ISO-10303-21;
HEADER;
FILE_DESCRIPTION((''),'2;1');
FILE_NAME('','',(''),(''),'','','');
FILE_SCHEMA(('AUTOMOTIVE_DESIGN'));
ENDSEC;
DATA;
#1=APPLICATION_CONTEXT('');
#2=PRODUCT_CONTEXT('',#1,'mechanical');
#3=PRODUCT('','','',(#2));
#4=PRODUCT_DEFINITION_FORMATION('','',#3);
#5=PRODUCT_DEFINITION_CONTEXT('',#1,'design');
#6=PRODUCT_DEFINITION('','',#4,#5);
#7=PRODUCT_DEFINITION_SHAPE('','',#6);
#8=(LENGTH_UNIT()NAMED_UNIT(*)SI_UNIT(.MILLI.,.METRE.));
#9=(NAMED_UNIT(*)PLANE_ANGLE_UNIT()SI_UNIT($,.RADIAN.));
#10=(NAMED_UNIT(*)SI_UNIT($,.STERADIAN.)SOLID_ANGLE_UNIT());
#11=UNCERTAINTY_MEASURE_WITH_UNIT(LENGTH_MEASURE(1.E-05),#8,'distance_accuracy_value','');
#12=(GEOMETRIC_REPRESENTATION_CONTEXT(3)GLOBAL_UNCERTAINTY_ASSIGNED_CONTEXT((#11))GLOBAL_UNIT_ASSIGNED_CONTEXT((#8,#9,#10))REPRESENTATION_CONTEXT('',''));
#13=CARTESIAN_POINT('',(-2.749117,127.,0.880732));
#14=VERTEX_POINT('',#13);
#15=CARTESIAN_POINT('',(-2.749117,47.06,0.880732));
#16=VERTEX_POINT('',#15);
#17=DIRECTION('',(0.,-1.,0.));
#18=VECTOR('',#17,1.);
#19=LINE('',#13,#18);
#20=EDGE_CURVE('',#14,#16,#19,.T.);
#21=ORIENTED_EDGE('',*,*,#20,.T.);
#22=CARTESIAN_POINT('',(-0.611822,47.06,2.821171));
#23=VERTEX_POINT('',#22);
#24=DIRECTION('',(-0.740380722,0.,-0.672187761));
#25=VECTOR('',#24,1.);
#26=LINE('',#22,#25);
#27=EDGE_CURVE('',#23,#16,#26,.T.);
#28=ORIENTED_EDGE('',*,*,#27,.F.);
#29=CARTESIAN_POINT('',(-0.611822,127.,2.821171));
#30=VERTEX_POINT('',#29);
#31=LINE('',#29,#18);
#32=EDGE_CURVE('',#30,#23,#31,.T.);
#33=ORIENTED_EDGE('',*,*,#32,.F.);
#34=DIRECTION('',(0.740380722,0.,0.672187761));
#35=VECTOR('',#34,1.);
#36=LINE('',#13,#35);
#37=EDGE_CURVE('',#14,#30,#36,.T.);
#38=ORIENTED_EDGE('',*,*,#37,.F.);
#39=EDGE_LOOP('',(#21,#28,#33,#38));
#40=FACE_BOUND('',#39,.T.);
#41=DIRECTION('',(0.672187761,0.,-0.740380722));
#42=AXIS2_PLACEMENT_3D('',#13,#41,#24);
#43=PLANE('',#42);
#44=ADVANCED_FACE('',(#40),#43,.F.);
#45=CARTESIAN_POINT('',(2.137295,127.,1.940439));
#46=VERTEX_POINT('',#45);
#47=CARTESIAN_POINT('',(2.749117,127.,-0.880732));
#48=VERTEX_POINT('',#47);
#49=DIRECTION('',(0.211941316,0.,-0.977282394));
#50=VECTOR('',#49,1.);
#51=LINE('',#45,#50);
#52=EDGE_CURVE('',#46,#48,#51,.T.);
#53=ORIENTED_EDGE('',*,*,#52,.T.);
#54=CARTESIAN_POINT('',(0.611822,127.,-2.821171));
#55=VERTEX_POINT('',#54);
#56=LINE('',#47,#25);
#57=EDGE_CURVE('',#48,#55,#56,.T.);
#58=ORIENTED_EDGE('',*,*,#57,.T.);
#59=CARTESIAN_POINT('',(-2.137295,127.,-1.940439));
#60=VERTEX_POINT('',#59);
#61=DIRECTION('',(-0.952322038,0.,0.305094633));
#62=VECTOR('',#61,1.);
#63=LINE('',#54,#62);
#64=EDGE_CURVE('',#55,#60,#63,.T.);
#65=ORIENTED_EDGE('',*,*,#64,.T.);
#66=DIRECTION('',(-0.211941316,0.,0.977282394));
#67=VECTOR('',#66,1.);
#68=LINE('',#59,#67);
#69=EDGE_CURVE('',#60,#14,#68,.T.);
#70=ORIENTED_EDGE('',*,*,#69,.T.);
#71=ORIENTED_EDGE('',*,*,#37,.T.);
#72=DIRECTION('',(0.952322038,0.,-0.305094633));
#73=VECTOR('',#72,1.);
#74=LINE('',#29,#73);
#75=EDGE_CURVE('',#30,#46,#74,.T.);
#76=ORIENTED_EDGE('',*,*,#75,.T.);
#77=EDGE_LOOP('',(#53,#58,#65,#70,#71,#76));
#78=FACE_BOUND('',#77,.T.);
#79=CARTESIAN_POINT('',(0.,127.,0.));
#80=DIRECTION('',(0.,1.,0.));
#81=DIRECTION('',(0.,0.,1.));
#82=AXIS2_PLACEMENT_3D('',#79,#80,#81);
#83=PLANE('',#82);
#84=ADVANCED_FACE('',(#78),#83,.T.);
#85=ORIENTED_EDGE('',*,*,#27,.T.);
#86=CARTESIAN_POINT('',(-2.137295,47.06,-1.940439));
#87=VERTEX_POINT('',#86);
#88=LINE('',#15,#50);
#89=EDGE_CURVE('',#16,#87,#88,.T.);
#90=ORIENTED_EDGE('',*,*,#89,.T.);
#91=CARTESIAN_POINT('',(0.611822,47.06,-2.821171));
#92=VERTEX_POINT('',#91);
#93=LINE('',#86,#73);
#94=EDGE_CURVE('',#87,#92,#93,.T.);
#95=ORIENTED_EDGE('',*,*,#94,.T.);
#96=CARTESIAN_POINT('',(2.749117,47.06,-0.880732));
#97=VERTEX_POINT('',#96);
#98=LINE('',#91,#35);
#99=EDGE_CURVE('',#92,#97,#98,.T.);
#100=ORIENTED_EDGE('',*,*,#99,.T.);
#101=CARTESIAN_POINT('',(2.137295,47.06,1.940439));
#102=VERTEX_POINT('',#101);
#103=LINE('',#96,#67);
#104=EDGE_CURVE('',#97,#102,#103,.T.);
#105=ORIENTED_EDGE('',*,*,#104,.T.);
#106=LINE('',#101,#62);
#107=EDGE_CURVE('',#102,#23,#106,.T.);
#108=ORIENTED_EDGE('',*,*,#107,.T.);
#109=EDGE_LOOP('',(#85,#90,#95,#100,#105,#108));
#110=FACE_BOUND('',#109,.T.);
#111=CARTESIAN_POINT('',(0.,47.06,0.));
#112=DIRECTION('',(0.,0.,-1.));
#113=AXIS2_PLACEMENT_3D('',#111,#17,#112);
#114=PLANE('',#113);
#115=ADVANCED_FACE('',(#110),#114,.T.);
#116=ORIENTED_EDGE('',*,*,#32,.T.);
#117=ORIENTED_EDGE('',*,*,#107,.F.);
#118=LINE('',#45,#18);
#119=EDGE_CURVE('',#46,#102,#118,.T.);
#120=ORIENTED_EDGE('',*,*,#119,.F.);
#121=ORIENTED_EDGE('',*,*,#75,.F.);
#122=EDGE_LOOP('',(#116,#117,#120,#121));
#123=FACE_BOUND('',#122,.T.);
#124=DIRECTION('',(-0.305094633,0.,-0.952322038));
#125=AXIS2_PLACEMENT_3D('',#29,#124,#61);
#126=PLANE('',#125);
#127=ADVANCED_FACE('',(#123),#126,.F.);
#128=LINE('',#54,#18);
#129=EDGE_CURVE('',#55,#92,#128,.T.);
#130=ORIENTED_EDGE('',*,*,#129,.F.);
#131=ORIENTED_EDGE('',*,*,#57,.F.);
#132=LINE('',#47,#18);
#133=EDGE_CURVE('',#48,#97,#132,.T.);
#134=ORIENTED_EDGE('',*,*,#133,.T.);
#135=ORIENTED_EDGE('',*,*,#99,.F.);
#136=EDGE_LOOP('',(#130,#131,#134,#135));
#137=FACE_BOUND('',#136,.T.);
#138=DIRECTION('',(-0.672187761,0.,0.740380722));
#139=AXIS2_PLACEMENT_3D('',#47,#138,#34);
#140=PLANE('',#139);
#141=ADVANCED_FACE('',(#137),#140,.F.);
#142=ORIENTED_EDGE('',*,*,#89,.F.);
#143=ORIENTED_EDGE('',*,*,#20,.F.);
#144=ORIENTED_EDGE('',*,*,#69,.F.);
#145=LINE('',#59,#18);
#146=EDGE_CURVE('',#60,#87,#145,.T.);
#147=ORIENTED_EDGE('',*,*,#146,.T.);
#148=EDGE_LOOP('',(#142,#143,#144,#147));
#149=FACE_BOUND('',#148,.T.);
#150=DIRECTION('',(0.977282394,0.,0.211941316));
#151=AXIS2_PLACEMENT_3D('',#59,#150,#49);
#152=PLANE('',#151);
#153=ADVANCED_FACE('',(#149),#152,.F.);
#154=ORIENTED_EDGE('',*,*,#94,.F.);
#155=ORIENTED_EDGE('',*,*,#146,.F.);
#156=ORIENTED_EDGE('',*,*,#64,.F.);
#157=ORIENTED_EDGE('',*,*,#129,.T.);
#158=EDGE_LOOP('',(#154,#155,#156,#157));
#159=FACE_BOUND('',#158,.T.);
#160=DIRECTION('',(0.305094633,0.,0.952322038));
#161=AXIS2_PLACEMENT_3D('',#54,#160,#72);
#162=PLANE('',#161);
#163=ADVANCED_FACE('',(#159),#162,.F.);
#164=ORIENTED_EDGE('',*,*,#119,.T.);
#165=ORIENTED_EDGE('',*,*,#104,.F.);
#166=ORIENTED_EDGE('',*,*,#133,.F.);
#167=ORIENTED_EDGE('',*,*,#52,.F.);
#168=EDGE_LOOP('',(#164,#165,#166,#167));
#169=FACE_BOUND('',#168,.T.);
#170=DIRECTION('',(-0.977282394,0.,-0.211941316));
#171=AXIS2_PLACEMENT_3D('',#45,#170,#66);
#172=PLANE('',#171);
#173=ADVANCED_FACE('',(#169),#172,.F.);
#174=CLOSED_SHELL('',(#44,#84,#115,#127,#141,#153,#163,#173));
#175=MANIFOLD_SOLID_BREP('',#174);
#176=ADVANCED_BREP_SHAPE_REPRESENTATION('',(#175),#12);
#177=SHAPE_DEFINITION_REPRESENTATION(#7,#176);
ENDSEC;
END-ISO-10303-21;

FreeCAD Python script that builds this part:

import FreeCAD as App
import Part
import Sketcher
from FreeCAD import Vector
Q = App.Units.Quantity

doc = App.newDocument("Part")
body = doc.addObject("PartDesign::Body", "Body")

# Sketch on XZ plane
sketch1 = body.newObject("Sketcher::SketchObject", "Sketch")
sketch1.AttachmentSupport = (doc.getObject("XZ_Plane"), [""])
sketch1.MapMode = "FlatFace"
sketch1.addGeometry(Part.LineSegment(Vector(2.1, 1.9, 0), Vector(2.7, -0.9, 0)), False)
sketch1.addGeometry(Part.LineSegment(Vector(2.7, -0.9, 0), Vector(0.6, -2.8, 0)), False)
sketch1.addGeometry(Part.LineSegment(Vector(0.6, -2.8, 0), Vector(-2.1, -1.9, 0)), False)
sketch1.addGeometry(Part.LineSegment(Vector(-2.1, -1.9, 0), Vector(-2.7, 0.9, 0)), False)
sketch1.addGeometry(Part.LineSegment(Vector(-2.7, 0.9, 0), Vector(-0.6, 2.8, 0)), False)
sketch1.addGeometry(Part.LineSegment(Vector(-0.6, 2.8, 0), Vector(2.1, 1.9, 0)), False)
sketch1.addConstraint(Sketcher.Constraint("Coincident", 0, 2, 1, 1))
sketch1.addConstraint(Sketcher.Constraint("Coincident", 1, 2, 2, 1))
sketch1.addConstraint(Sketcher.Constraint("Coincident", 2, 2, 3, 1))
sketch1.addConstraint(Sketcher.Constraint("Coincident", 3, 2, 4, 1))
sketch1.addConstraint(Sketcher.Constraint("Coincident", 4, 2, 5, 1))
sketch1.addConstraint(Sketcher.Constraint("Coincident", 5, 2, 0, 1))
sketch1.addConstraint(Sketcher.Constraint("Symmetric", 0, 2, 3, 2, -1, 1))
sketch1.addConstraint(Sketcher.Constraint("Symmetric", 1, 2, 4, 2, -1, 1))
sketch1.addConstraint(Sketcher.Constraint("Symmetric", 2, 2, 5, 2, -1, 1))
sketch1.addConstraint(Sketcher.Constraint("Equal", 0, 1))
sketch1.addConstraint(Sketcher.Constraint("Equal", 1, 2))
sketch1.addConstraint(Sketcher.Constraint("Distance", 0, Q("2.886751 mm")))
sketch1.addConstraint(Sketcher.Constraint("DistanceX", -1, 1, 1, 2, Q("0.611822 mm")))
sketch1.addConstraint(Sketcher.Constraint("DistanceY", 1, 2, -1, 1, Q("2.821171 mm")))
sketch1.addConstraint(Sketcher.Constraint("DistanceY", 2, 2, -1, 1, Q("1.940439 mm")))
pad1 = body.newObject("PartDesign::Pad", "Pad")
pad1.Profile = sketch1
pad1.Length = 127
pad1.Reversed = True

# Sketch on XZ plane
sketch2 = body.newObject("Sketcher::SketchObject", "Sketch001")
sketch2.AttachmentSupport = (doc.getObject("XZ_Plane"), [""])
sketch2.MapMode = "FlatFace"
sketch2.addGeometry(Part.LineSegment(Vector(-13, 10, 0), Vector(-13, -8, 0)), False)
sketch2.addGeometry(Part.LineSegment(Vector(-13, -8, 0), Vector(7, -8, 0)), False)
sketch2.addGeometry(Part.LineSegment(Vector(7, -8, 0), Vector(7, 10, 0)), False)
sketch2.addGeometry(Part.LineSegment(Vector(7, 10, 0), Vector(-13, 10, 0)), False)
sketch2.addConstraint(Sketcher.Constraint("Coincident", 0, 2, 1, 1))
sketch2.addConstraint(Sketcher.Constraint("Coincident", 1, 2, 2, 1))
sketch2.addConstraint(Sketcher.Constraint("Coincident", 2, 2, 3, 1))
sketch2.addConstraint(Sketcher.Constraint("Coincident", 3, 2, 0, 1))
sketch2.addConstraint(Sketcher.Constraint("Vertical", 0))
sketch2.addConstraint(Sketcher.Constraint("Horizontal", 1))
sketch2.addConstraint(Sketcher.Constraint("Vertical", 2))
sketch2.addConstraint(Sketcher.Constraint("Horizontal", 3))
sketch2.addConstraint(Sketcher.Constraint("DistanceX", 0, 2, -1, 1, Q("13.2192 mm")))
sketch2.addConstraint(Sketcher.Constraint("DistanceX", 1, 1, 1, 2, Q("20.194547 mm")))
sketch2.addConstraint(Sketcher.Constraint("DistanceY", 0, 2, 0, 1, Q("18.170774 mm")))
sketch2.addConstraint(Sketcher.Constraint("DistanceY", 0, 2, -1, 1, Q("8.313967 mm")))
pocket1 = body.newObject("PartDesign::Pocket", "Pocket")
pocket1.Profile = sketch2
pocket1.Length = 38.1

# Sketch on XZ plane
sketch3 = body.newObject("Sketcher::SketchObject", "Sketch002")
sketch3.AttachmentSupport = (doc.getObject("XZ_Plane"), [""])
sketch3.MapMode = "FlatFace"
sketch3.AttachmentOffset = App.Placement(Vector(0, 0, -38.1), App.Rotation())
sketch3.addGeometry(Part.LineSegment(Vector(0.6, -2.8, 0), Vector(2.7, -0.9, 0)), False)
sketch3.addGeometry(Part.LineSegment(Vector(2.7, -0.9, 0), Vector(2.1, 1.9, 0)), False)
sketch3.addGeometry(Part.LineSegment(Vector(2.1, 1.9, 0), Vector(-0.6, 2.8, 0)), False)
sketch3.addGeometry(Part.LineSegment(Vector(-0.6, 2.8, 0), Vector(-2.7, 0.9, 0)), False)
sketch3.addGeometry(Part.LineSegment(Vector(-2.7, 0.9, 0), Vector(-2.1, -1.9, 0)), False)
sketch3.addGeometry(Part.LineSegment(Vector(-2.1, -1.9, 0), Vector(0.6, -2.8, 0)), False)
sketch3.addConstraint(Sketcher.Constraint("Coincident", 0, 2, 1, 1))
sketch3.addConstraint(Sketcher.Constraint("Coincident", 1, 2, 2, 1))
sketch3.addConstraint(Sketcher.Constraint("Coincident", 2, 2, 3, 1))
sketch3.addConstraint(Sketcher.Constraint("Coincident", 3, 2, 4, 1))
sketch3.addConstraint(Sketcher.Constraint("Coincident", 4, 2, 5, 1))
sketch3.addConstraint(Sketcher.Constraint("Coincident", 5, 2, 0, 1))
sketch3.addConstraint(Sketcher.Constraint("Symmetric", 0, 2, 3, 2, -1, 1))
sketch3.addConstraint(Sketcher.Constraint("Symmetric", 1, 2, 4, 2, -1, 1))
sketch3.addConstraint(Sketcher.Constraint("Symmetric", 2, 2, 5, 2, -1, 1))
sketch3.addConstraint(Sketcher.Constraint("Equal", 0, 1))
sketch3.addConstraint(Sketcher.Constraint("Equal", 1, 2))
sketch3.addConstraint(Sketcher.Constraint("Distance", 0, Q("2.886751 mm")))
sketch3.addConstraint(Sketcher.Constraint("DistanceY", -1, 1, 1, 2, Q("1.940439 mm")))
sketch3.addConstraint(Sketcher.Constraint("DistanceX", 2, 2, -1, 1, Q("0.611822 mm")))
sketch3.addConstraint(Sketcher.Constraint("DistanceY", -1, 1, 2, 2, Q("2.821171 mm")))
pad2 = body.newObject("PartDesign::Pad", "Pad001")
pad2.Profile = sketch3
pad2.Length = 2.54

# Sketch on XZ plane
sketch4 = body.newObject("Sketcher::SketchObject", "Sketch003")
sketch4.AttachmentSupport = (doc.getObject("XZ_Plane"), [""])
sketch4.MapMode = "FlatFace"
sketch4.AttachmentOffset = App.Placement(Vector(0, 0, -35.56), App.Rotation())
sketch4.addGeometry(Part.LineSegment(Vector(-19, 10, 0), Vector(-19, -12, 0)), False)
sketch4.addGeometry(Part.LineSegment(Vector(-19, -12, 0), Vector(16, -12, 0)), False)
sketch4.addGeometry(Part.LineSegment(Vector(16, -12, 0), Vector(16, 10, 0)), False)
sketch4.addGeometry(Part.LineSegment(Vector(16, 10, 0), Vector(-19, 10, 0)), False)
sketch4.addConstraint(Sketcher.Constraint("Coincident", 0, 2, 1, 1))
sketch4.addConstraint(Sketcher.Constraint("Coincident", 1, 2, 2, 1))
sketch4.addConstraint(Sketcher.Constraint("Coincident", 2, 2, 3, 1))
sketch4.addConstraint(Sketcher.Constraint("Coincident", 3, 2, 0, 1))
sketch4.addConstraint(Sketcher.Constraint("Vertical", 0))
sketch4.addConstraint(Sketcher.Constraint("Horizontal", 1))
sketch4.addConstraint(Sketcher.Constraint("Vertical", 2))
sketch4.addConstraint(Sketcher.Constraint("Horizontal", 3))
sketch4.addConstraint(Sketcher.Constraint("DistanceY", 0, 2, 0, 1, Q("22.340459 mm")))
sketch4.addConstraint(Sketcher.Constraint("DistanceX", 1, 1, 1, 2, Q("34.517573 mm")))
sketch4.addConstraint(Sketcher.Constraint("DistanceX", -1, 1, 1, 2, Q("15.910529 mm")))
sketch4.addConstraint(Sketcher.Constraint("DistanceY", -1, 1, 2, 2, Q("10.137651 mm")))
pocket2 = body.newObject("PartDesign::Pocket", "Pocket001")
pocket2.Profile = sketch4
pocket2.Length = 50

# Sketch on XZ plane
sketch5 = body.newObject("Sketcher::SketchObject", "Sketch004")
sketch5.AttachmentSupport = (doc.getObject("XZ_Plane"), [""])
sketch5.MapMode = "FlatFace"
sketch5.AttachmentOffset = App.Placement(Vector(0, 0, -85.56), App.Rotation())
sketch5.addGeometry(Part.LineSegment(Vector(0.6, -2.8, 0), Vector(2.7, -0.9, 0)), False)
sketch5.addGeometry(Part.LineSegment(Vector(2.7, -0.9, 0), Vector(2.1, 1.9, 0)), False)
sketch5.addGeometry(Part.LineSegment(Vector(2.1, 1.9, 0), Vector(-0.6, 2.8, 0)), False)
sketch5.addGeometry(Part.LineSegment(Vector(-0.6, 2.8, 0), Vector(-2.7, 0.9, 0)), False)
sketch5.addGeometry(Part.LineSegment(Vector(-2.7, 0.9, 0), Vector(-2.1, -1.9, 0)), False)
sketch5.addGeometry(Part.LineSegment(Vector(-2.1, -1.9, 0), Vector(0.6, -2.8, 0)), False)
sketch5.addConstraint(Sketcher.Constraint("Coincident", 0, 2, 1, 1))
sketch5.addConstraint(Sketcher.Constraint("Coincident", 1, 2, 2, 1))
sketch5.addConstraint(Sketcher.Constraint("Coincident", 2, 2, 3, 1))
sketch5.addConstraint(Sketcher.Constraint("Coincident", 3, 2, 4, 1))
sketch5.addConstraint(Sketcher.Constraint("Coincident", 4, 2, 5, 1))
sketch5.addConstraint(Sketcher.Constraint("Coincident", 5, 2, 0, 1))
sketch5.addConstraint(Sketcher.Constraint("Symmetric", 0, 2, 3, 2, -1, 1))
sketch5.addConstraint(Sketcher.Constraint("Symmetric", 1, 2, 4, 2, -1, 1))
sketch5.addConstraint(Sketcher.Constraint("Symmetric", 2, 2, 5, 2, -1, 1))
sketch5.addConstraint(Sketcher.Constraint("Equal", 0, 1))
sketch5.addConstraint(Sketcher.Constraint("Equal", 1, 2))
sketch5.addConstraint(Sketcher.Constraint("Distance", 0, Q("2.886751 mm")))
sketch5.addConstraint(Sketcher.Constraint("DistanceY", -1, 1, 1, 2, Q("1.940439 mm")))
sketch5.addConstraint(Sketcher.Constraint("DistanceX", 2, 2, -1, 1, Q("0.611822 mm")))
sketch5.addConstraint(Sketcher.Constraint("DistanceY", -1, 1, 2, 2, Q("2.821171 mm")))
pad3 = body.newObject("PartDesign::Pad", "Pad002")
pad3.Profile = sketch5
pad3.Length = 25

# Sketch on XZ plane
sketch6 = body.newObject("Sketcher::SketchObject", "Sketch005")
sketch6.AttachmentSupport = (doc.getObject("XZ_Plane"), [""])
sketch6.MapMode = "FlatFace"
sketch6.AttachmentOffset = App.Placement(Vector(0, 0, -60.56), App.Rotation())
sketch6.addGeometry(Part.LineSegment(Vector(0.6, -2.8, 0), Vector(2.7, -0.9, 0)), False)
sketch6.addGeometry(Part.LineSegment(Vector(2.7, -0.9, 0), Vector(2.1, 1.9, 0)), False)
sketch6.addGeometry(Part.LineSegment(Vector(2.1, 1.9, 0), Vector(-0.6, 2.8, 0)), False)
sketch6.addGeometry(Part.LineSegment(Vector(-0.6, 2.8, 0), Vector(-2.7, 0.9, 0)), False)
sketch6.addGeometry(Part.LineSegment(Vector(-2.7, 0.9, 0), Vector(-2.1, -1.9, 0)), False)
sketch6.addGeometry(Part.LineSegment(Vector(-2.1, -1.9, 0), Vector(0.6, -2.8, 0)), False)
sketch6.addConstraint(Sketcher.Constraint("Coincident", 0, 2, 1, 1))
sketch6.addConstraint(Sketcher.Constraint("Coincident", 1, 2, 2, 1))
sketch6.addConstraint(Sketcher.Constraint("Coincident", 2, 2, 3, 1))
sketch6.addConstraint(Sketcher.Constraint("Coincident", 3, 2, 4, 1))
sketch6.addConstraint(Sketcher.Constraint("Coincident", 4, 2, 5, 1))
sketch6.addConstraint(Sketcher.Constraint("Coincident", 5, 2, 0, 1))
sketch6.addConstraint(Sketcher.Constraint("Symmetric", 0, 2, 3, 2, -1, 1))
sketch6.addConstraint(Sketcher.Constraint("Symmetric", 1, 2, 4, 2, -1, 1))
sketch6.addConstraint(Sketcher.Constraint("Symmetric", 2, 2, 5, 2, -1, 1))
sketch6.addConstraint(Sketcher.Constraint("Equal", 0, 1))
sketch6.addConstraint(Sketcher.Constraint("Equal", 1, 2))
sketch6.addConstraint(Sketcher.Constraint("Distance", 0, Q("2.886751 mm")))
sketch6.addConstraint(Sketcher.Constraint("DistanceY", -1, 1, 1, 2, Q("1.940439 mm")))
sketch6.addConstraint(Sketcher.Constraint("DistanceX", 2, 2, -1, 1, Q("0.611822 mm")))
sketch6.addConstraint(Sketcher.Constraint("DistanceY", -1, 1, 2, 2, Q("2.821171 mm")))
pad4 = body.newObject("PartDesign::Pad", "Pad003")
pad4.Profile = sketch6
pad4.Length = 13.5

doc.recompute()
